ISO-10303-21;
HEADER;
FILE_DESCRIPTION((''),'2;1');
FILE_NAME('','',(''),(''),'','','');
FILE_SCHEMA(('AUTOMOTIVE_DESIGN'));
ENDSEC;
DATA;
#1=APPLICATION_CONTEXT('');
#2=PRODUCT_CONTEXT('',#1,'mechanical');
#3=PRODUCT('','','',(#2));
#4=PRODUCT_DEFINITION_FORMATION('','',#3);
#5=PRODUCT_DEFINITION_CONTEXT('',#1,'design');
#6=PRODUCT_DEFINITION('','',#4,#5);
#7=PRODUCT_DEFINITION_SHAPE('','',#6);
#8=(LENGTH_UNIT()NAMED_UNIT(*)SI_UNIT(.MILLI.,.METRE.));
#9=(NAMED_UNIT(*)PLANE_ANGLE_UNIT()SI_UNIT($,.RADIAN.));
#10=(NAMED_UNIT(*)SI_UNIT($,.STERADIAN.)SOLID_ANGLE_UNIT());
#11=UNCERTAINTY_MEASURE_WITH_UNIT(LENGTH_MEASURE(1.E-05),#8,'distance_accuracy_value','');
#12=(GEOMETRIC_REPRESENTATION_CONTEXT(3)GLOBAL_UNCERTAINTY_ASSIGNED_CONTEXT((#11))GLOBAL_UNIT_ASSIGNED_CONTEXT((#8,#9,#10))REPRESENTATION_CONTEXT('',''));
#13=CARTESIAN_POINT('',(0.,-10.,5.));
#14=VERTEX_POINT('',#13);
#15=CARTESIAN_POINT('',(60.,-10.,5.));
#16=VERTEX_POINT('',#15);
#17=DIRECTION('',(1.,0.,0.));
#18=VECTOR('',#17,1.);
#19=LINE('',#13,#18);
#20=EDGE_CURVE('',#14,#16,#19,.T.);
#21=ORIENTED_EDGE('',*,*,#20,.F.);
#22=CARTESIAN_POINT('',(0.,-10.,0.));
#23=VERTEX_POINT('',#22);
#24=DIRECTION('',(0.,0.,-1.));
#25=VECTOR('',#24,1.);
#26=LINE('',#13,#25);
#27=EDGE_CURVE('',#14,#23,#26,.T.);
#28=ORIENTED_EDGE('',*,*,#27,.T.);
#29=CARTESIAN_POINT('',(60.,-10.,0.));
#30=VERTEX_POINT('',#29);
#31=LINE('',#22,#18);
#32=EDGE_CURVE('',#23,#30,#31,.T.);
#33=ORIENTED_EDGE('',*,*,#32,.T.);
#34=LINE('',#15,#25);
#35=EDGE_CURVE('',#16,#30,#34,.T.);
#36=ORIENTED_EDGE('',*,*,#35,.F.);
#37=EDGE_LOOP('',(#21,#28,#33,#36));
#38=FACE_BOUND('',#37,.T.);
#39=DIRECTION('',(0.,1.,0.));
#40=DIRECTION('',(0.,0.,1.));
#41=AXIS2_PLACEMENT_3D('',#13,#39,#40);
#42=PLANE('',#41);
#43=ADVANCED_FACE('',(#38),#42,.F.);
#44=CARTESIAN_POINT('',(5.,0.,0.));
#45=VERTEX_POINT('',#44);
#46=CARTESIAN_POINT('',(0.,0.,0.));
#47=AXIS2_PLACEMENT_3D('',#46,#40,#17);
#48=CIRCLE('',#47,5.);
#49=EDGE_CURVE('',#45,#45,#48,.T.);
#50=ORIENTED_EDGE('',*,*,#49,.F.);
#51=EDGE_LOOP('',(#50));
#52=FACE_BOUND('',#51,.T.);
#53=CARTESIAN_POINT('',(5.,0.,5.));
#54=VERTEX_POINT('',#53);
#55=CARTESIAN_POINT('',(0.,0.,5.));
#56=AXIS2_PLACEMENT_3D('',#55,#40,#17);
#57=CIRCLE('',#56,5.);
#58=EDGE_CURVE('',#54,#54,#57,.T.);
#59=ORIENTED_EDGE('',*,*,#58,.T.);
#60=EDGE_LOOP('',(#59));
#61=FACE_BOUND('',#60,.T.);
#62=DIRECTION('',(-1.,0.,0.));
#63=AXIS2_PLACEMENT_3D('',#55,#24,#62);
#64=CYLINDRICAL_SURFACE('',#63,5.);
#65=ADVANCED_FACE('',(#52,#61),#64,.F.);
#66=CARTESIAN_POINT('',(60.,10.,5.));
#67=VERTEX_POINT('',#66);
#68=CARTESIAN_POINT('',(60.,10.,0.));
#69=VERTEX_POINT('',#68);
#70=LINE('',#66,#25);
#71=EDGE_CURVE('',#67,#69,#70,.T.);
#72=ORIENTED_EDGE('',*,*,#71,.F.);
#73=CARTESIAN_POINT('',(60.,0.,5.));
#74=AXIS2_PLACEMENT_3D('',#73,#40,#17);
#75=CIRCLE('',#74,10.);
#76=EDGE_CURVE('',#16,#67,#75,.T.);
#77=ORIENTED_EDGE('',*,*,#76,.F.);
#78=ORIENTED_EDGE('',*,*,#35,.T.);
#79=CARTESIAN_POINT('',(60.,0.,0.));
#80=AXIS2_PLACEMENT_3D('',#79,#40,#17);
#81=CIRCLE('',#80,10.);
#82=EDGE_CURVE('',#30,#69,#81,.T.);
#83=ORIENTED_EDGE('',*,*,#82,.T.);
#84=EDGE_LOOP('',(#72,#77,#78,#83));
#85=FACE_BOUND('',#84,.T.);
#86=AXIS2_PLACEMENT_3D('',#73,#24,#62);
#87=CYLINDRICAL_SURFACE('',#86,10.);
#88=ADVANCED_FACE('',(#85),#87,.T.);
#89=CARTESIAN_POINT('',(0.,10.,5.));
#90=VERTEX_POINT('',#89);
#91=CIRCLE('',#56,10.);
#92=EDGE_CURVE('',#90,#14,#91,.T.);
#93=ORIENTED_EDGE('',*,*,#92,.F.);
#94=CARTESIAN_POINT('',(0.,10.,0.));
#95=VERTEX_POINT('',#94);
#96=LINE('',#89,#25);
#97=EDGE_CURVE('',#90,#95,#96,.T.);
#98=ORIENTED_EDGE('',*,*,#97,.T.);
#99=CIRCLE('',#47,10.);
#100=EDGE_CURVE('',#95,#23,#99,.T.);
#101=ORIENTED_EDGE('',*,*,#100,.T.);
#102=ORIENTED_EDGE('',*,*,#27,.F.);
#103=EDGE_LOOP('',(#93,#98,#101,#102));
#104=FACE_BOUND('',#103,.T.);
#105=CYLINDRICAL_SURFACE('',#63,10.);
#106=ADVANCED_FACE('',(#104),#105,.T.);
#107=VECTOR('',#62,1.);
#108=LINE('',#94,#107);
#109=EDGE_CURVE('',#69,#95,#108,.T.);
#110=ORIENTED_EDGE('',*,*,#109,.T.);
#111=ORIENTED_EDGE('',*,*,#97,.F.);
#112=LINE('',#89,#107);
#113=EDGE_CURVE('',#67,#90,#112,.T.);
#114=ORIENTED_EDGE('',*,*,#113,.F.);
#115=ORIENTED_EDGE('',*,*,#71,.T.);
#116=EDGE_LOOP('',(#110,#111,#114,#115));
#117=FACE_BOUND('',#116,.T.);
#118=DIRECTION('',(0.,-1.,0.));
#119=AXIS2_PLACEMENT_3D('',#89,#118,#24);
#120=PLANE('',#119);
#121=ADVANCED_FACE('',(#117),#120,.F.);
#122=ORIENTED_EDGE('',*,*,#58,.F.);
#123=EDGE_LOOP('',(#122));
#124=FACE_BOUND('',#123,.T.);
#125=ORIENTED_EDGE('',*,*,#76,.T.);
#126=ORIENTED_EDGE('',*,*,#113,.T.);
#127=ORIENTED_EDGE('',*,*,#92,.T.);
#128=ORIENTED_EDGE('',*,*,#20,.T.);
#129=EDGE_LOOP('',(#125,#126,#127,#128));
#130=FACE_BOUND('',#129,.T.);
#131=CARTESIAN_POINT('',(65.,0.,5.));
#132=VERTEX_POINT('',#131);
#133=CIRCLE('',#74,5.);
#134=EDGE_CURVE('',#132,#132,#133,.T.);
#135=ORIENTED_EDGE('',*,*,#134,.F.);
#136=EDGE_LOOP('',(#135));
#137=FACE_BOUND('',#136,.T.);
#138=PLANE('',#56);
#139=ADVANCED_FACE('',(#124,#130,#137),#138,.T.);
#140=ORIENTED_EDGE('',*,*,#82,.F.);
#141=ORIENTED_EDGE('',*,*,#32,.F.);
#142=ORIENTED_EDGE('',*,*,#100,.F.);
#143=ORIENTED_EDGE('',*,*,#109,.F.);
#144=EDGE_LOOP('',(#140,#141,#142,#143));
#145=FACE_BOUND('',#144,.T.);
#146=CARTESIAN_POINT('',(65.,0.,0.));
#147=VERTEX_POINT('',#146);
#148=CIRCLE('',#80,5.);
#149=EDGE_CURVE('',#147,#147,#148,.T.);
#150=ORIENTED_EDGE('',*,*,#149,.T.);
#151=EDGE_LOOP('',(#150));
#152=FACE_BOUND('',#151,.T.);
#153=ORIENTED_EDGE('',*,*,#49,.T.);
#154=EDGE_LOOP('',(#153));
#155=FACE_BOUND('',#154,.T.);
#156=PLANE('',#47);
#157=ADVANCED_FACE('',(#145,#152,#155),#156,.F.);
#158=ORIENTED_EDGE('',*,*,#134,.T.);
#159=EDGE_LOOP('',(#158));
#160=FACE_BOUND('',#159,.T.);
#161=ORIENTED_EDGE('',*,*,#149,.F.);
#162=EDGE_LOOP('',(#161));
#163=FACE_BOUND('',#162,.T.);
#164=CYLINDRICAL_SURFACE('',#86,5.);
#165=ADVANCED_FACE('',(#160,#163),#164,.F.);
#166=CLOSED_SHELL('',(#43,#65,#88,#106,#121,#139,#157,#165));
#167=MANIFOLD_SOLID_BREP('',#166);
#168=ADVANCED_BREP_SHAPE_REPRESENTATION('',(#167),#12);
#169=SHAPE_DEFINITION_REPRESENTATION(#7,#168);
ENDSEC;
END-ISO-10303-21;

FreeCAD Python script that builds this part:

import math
import FreeCAD as App
import Part
import Sketcher
from FreeCAD import Vector
Q = App.Units.Quantity

doc = App.newDocument("Part")
body = doc.addObject("PartDesign::Body", "Body")

# Sketch on XY plane
sketch1 = body.newObject("Sketcher::SketchObject", "Sketch")
sketch1.AttachmentSupport = (doc.getObject("XY_Plane"), [""])
sketch1.MapMode = "FlatFace"
sketch1.addGeometry([
    Part.LineSegment(Vector(60, 10, 0), Vector(0, 10, 0)),  # 0
    Part.ArcOfCircle(Part.Circle(Vector(0, 0, 0), Vector(0, 0, 1), 10), math.radians(90), math.radians(270)),  # 1
    Part.LineSegment(Vector(0, -10, 0), Vector(60, -10, 0)),  # 2
    Part.ArcOfCircle(Part.Circle(Vector(60, 0, 0), Vector(0, 0, 1), 10), math.radians(-90), math.radians(90)),  # 3
    Part.Circle(Vector(60, 0, 0), Vector(0, 0, 1), 5),  # 4
    Part.Circle(Vector(0, 0, 0), Vector(0, 0, 1), 5),  # 5
], False)
sketch1.addConstraint([
    Sketcher.Constraint("Tangent", 0, 2, 1, 1),
    Sketcher.Constraint("Tangent", 1, 2, 2, 1),
    Sketcher.Constraint("Tangent", 2, 2, 3, 1),
    Sketcher.Constraint("Tangent", 3, 2, 0, 1),
    Sketcher.Constraint("Horizontal", 0),
    Sketcher.Constraint("Horizontal", 2),
    Sketcher.Constraint("Coincident", 1, 3, -1, 1),
    Sketcher.Constraint("Coincident", 5, 3, -1, 1),
    Sketcher.Constraint("Coincident", 4, 3, 3, 3),
    Sketcher.Constraint("Equal", 4, 5),
    Sketcher.Constraint("Diameter", 4, Q("10 mm")),
    Sketcher.Constraint("Radius", 1, Q("10 mm")),
    Sketcher.Constraint("DistanceX", 0, 2, 0, 1, Q("60 mm")),
])
pad1 = body.newObject("PartDesign::Pad", "Pad")
pad1.Profile = sketch1
pad1.Length = 5

doc.recompute()
